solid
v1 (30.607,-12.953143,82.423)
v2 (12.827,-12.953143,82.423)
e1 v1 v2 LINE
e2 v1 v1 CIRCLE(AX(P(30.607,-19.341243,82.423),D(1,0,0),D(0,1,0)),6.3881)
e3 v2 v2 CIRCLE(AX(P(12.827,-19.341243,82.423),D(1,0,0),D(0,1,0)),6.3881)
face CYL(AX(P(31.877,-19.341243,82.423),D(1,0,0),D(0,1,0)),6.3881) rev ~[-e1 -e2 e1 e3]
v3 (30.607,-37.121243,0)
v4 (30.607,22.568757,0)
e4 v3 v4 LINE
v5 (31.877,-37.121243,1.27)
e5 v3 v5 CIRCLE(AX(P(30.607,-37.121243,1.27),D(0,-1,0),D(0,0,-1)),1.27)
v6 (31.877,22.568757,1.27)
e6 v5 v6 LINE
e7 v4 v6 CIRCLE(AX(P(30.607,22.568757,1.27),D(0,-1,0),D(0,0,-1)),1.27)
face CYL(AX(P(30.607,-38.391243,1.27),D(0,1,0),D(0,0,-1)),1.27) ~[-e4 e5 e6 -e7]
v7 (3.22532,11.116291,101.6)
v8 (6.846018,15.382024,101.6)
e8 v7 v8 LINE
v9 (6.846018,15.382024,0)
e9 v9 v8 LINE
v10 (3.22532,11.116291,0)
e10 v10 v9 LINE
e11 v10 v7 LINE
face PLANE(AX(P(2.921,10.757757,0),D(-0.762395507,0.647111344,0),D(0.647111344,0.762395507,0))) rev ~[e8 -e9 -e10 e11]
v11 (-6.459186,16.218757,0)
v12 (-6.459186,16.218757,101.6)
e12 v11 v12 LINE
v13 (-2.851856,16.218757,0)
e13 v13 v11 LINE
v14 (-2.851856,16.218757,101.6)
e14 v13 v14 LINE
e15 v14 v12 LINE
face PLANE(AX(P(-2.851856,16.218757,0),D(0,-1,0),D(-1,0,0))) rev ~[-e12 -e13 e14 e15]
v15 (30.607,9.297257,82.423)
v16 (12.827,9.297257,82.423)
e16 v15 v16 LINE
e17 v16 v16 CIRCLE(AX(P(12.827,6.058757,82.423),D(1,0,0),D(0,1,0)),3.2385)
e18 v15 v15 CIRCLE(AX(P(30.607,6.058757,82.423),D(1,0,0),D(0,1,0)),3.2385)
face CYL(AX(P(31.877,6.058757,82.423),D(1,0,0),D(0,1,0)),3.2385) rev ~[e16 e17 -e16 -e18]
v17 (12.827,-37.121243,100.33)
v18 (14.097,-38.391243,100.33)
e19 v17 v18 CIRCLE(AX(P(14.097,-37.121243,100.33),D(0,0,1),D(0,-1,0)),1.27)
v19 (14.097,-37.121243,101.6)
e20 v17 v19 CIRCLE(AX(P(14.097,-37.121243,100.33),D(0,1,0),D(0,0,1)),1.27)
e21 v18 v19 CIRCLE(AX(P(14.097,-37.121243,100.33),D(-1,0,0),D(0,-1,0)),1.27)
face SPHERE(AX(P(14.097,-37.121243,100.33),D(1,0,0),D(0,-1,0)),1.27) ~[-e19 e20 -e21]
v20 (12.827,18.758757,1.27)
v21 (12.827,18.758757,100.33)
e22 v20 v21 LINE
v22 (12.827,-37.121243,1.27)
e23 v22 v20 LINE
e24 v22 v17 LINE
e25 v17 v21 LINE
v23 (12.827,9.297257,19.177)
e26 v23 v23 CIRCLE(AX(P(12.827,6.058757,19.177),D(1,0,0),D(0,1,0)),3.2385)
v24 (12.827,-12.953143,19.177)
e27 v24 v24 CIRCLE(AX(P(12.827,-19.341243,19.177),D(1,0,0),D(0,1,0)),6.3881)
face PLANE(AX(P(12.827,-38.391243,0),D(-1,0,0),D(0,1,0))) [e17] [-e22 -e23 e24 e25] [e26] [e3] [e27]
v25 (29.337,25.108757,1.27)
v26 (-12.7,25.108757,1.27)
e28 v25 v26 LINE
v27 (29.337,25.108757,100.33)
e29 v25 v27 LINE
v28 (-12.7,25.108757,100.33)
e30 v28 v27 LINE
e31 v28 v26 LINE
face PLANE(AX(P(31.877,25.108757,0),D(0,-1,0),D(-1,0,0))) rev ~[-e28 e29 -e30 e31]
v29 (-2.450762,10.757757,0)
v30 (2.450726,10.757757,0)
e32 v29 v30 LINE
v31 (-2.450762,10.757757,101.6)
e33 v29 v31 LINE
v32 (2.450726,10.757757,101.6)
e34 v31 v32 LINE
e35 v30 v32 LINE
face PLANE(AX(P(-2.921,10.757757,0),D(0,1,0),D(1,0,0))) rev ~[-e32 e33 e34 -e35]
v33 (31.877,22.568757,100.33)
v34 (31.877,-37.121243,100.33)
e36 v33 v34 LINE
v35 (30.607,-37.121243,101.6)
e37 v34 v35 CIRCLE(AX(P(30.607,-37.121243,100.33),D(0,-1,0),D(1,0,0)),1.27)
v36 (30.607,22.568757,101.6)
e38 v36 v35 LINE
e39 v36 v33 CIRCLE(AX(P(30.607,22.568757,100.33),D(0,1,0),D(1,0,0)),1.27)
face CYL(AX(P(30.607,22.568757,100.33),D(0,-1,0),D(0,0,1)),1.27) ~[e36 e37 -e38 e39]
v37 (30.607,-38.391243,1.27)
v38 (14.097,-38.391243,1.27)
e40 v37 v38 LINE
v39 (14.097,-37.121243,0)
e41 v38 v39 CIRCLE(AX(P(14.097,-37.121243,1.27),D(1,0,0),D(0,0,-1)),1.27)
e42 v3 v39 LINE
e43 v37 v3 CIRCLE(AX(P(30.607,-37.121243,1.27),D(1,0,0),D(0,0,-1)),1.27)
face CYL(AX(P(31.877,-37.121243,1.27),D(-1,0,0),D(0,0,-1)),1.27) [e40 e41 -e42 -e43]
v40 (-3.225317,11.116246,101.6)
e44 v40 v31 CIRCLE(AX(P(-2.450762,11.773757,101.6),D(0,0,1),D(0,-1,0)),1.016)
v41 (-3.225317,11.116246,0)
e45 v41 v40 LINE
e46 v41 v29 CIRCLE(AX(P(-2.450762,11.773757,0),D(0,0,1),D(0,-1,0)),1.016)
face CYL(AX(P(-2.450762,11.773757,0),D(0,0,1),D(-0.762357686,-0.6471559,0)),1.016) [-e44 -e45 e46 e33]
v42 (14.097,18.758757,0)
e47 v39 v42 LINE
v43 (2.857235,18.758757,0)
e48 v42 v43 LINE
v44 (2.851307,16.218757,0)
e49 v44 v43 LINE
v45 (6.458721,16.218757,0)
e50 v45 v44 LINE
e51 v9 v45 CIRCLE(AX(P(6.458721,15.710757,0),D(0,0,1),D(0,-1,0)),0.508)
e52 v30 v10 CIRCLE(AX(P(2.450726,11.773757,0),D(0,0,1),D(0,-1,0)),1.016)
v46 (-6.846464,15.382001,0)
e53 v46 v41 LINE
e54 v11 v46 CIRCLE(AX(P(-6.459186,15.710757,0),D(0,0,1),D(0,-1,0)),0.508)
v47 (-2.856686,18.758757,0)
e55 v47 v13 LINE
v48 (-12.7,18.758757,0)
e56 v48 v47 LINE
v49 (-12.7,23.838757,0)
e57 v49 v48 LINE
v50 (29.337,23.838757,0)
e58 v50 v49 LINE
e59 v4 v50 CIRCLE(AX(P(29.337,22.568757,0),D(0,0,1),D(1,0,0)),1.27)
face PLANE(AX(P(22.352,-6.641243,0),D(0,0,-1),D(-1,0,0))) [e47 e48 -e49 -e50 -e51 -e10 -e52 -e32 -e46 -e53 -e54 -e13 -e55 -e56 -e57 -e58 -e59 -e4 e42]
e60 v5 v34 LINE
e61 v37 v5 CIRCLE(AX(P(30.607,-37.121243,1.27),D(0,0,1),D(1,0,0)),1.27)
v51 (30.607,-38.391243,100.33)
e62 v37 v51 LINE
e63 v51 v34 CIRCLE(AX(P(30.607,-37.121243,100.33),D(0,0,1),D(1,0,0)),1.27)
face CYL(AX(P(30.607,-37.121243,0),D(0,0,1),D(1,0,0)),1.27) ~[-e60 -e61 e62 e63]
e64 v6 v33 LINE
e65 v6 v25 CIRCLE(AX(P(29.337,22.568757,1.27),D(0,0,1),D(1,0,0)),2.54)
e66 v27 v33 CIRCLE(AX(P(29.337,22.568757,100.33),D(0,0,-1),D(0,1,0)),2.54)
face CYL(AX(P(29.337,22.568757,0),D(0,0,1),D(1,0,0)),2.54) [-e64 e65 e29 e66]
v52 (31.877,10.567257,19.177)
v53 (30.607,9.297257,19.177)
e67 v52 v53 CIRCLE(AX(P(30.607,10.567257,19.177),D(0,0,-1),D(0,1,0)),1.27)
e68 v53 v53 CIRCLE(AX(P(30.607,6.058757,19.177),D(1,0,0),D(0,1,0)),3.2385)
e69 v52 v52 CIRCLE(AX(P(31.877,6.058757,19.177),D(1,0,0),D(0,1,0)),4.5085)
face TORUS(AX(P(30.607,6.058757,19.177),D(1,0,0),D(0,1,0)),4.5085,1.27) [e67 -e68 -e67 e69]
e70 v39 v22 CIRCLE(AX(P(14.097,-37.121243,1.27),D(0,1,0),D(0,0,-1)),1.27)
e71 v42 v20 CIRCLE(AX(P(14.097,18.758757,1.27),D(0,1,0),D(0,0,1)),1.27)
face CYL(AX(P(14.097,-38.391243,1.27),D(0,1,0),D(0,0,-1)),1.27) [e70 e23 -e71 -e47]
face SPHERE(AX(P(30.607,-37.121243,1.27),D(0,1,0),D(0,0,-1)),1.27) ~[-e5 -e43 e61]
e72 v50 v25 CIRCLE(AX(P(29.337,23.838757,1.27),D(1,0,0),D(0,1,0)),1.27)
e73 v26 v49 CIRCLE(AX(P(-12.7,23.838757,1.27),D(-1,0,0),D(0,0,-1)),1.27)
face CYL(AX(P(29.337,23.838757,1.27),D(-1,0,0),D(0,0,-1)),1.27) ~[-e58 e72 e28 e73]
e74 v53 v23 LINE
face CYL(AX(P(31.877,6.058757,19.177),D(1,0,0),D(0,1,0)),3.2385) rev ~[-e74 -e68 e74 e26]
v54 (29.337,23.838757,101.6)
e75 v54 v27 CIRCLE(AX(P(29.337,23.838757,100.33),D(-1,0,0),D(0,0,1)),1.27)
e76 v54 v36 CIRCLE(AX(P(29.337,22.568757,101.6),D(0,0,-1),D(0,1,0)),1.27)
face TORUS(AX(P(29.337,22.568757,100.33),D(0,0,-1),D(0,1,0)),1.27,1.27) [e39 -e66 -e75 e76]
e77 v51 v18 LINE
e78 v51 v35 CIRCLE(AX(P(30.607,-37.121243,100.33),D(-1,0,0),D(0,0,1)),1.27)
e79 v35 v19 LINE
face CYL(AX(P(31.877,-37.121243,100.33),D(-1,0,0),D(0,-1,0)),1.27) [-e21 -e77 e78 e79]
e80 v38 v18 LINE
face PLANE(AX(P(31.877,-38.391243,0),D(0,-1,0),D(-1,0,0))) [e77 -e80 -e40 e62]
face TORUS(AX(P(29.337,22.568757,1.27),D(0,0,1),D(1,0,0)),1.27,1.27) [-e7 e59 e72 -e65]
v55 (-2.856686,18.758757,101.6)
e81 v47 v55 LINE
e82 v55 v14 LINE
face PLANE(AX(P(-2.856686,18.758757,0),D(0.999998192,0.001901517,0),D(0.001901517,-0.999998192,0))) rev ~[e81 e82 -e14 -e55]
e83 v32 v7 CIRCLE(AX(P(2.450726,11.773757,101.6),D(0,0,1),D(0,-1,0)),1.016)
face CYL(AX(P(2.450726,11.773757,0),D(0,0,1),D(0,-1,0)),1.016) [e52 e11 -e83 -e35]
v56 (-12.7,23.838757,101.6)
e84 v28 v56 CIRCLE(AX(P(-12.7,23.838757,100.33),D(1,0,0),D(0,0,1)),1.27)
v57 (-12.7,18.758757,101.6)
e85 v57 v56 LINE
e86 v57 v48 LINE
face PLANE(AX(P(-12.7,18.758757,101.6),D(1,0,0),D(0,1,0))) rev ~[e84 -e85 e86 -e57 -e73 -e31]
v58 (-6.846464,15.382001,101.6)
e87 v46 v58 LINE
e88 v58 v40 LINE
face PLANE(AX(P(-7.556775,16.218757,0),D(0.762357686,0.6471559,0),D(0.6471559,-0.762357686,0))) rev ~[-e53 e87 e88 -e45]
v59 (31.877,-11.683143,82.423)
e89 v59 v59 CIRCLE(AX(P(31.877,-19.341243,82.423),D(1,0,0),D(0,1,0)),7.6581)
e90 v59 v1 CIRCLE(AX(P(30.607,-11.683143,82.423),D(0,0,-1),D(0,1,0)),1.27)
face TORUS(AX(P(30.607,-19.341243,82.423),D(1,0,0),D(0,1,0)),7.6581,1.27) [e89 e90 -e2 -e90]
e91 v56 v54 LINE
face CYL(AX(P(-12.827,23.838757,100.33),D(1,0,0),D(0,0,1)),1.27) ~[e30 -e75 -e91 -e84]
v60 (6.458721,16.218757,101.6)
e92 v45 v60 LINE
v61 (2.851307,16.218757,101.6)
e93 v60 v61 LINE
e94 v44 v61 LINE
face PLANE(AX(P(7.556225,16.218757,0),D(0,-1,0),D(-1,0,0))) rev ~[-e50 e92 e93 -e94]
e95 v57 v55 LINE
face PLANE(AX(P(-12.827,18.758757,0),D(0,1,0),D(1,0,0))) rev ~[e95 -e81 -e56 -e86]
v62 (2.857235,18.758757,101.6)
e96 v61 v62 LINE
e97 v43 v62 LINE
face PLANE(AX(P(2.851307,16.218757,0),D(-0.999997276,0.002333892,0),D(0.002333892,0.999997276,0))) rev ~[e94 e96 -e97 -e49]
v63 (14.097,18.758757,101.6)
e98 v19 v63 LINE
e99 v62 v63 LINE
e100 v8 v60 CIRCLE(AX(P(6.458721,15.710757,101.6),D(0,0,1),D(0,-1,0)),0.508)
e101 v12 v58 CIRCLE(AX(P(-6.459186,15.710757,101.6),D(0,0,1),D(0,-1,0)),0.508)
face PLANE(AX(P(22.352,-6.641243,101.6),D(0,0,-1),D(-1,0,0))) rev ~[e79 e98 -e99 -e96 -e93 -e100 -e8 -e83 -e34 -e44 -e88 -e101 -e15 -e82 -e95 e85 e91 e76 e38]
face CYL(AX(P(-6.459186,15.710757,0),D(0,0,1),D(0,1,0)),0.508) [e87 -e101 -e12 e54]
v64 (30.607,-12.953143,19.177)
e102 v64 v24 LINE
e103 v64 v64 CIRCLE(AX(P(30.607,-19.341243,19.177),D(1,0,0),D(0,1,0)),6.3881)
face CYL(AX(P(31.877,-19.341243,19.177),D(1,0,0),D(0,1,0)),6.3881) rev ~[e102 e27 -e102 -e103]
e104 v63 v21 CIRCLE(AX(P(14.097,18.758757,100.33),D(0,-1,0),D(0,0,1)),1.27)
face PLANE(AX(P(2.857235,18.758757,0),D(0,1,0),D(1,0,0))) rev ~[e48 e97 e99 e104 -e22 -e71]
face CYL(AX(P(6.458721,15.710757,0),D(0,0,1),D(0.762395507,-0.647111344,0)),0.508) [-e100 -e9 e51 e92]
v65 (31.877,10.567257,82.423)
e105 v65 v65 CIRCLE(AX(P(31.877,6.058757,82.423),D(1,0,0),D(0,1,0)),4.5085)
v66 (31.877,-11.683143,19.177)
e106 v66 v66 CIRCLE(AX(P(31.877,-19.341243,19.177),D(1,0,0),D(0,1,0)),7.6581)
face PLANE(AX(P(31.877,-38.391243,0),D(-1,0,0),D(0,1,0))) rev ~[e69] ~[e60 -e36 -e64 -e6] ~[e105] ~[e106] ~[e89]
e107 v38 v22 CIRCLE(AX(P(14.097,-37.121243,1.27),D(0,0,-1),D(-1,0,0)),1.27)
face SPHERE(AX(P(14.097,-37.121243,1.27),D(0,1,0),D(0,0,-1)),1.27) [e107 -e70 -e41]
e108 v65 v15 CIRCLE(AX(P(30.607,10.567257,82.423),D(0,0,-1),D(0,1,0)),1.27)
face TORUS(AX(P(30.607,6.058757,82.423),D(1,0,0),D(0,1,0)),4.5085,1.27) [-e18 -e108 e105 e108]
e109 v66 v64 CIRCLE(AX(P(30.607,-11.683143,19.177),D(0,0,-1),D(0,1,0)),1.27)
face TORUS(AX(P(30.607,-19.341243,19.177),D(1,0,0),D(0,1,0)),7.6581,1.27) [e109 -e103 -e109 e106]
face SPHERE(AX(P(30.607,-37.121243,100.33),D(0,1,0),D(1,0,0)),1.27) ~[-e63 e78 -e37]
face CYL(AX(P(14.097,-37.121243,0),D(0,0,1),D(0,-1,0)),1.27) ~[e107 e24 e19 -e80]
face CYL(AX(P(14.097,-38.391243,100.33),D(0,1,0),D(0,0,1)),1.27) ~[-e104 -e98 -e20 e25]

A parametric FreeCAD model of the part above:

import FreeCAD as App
import Part
import Sketcher
from FreeCAD import Vector
Q = App.Units.Quantity


def edges_at(feature, points):
    """Names of the edges that pass closest to the given points."""
    edges = feature.Shape.Edges
    near = lambda p: min(range(len(edges)), key=lambda i: edges[i].distToShape(Part.Vertex(*p))[0])
    return sorted({f"Edge{near(p) + 1}" for p in points})


def add_polygon(sketch, points):
    """Adds a closed chain of lines whose ends are joined by coincident constraints."""
    first, n = sketch.GeometryCount, len(points)
    for a, b in zip(points, points[1:] + points[:1]):
        sketch.addGeometry(Part.LineSegment(App.Vector(*a, 0), App.Vector(*b, 0)), False)
    for i in range(n):
        sketch.addConstraint(Sketcher.Constraint("Coincident", first + i, 2, first + (i + 1) % n, 1))

doc = App.newDocument("Part")
body = doc.addObject("PartDesign::Body", "Body")

sketch1 = body.newObject("Sketcher::SketchObject", "Sketch")
sketch1.AttachmentSupport = (doc.getObject("XY_Plane"), [""])
sketch1.MapMode = "FlatFace"
add_polygon(sketch1, [(-12.827, 25.108757), (-12.827, 18.758757), (-2.856686, 18.758757), (-2.851856, 16.218757), (-7.556775, 16.218757), (-2.921, 10.757757), (2.921, 10.757757), (7.556225, 16.218757), (2.851307, 16.218757), (2.857235, 18.758757), (12.827, 18.758757), (12.827, 25.108757)])
sketch1.addConstraint([
    Sketcher.Constraint("Vertical", 0),
    Sketcher.Constraint("Horizontal", 1),
    Sketcher.Constraint("Horizontal", 3),
    Sketcher.Constraint("Horizontal", 5),
    Sketcher.Constraint("Horizontal", 7),
    Sketcher.Constraint("Horizontal", 9),
    Sketcher.Constraint("Vertical", 10),
    Sketcher.Constraint("Horizontal", 11),
    Sketcher.Constraint("Symmetric", 0, 2, 9, 2, -2),
    Sketcher.Constraint("Horizontal", 3, 2, 6, 2),
    Sketcher.Constraint("Equal", 3, 7),
    Sketcher.Constraint("Distance", 2, Q("0.1000002 in")),
    Sketcher.Constraint("DistanceX", 5, 1, 5, 2, Q("0.23 in")),
    Sketcher.Constraint("DistanceX", 11, 2, 11, 1, Q("1.01 in")),
    Sketcher.Constraint("DistanceY", 0, 2, 0, 1, Q("0.25 in")),
    Sketcher.Constraint("DistanceX", 0, 2, 4, 2, Q("0.39 in")),
    Sketcher.Constraint("DistanceY", 4, 2, 2, 2, Q("0.215 in")),
    Sketcher.Constraint("DistanceX", 3, 2, 6, 2, Q("0.595 in")),
    Sketcher.Constraint("DistanceX", 3, 2, 3, 1, Q("4.704918 mm")),
    Sketcher.Constraint("Distance", 6, Q("7.162949 mm")),
    Sketcher.Constraint("DistanceX", 1, 1, 1, 2, Q("9.970314 mm")),
    Sketcher.Constraint("DistanceX", 9, 1, 9, 2, Q("9.969765 mm")),
    Sketcher.Constraint("DistanceY", -1, 1, 0, 2, Q("18.758757 mm")),
])
pad1 = body.newObject("PartDesign::Pad", "Pad")
pad1.Profile = sketch1
pad1.Length = Q("4 in")
doc.recompute()

fillet = body.newObject("PartDesign::Fillet", "Fillet")
fillet.Base = (pad1, edges_at(pad1, [(7.556, 16.219, 50.8), (-7.557, 16.219, 50.8)]))
fillet.Radius = Q("0.02 in")
doc.recompute()

fillet2 = body.newObject("PartDesign::Fillet", "Fillet001")
fillet2.Base = (fillet, edges_at(fillet, [(2.921, 10.758, 50.8), (-2.921, 10.758, 50.8)]))
fillet2.Radius = Q("0.04 in")

sketch2 = body.newObject("Sketcher::SketchObject", "Sketch001")
sketch2.AttachmentSupport = (doc.getObject("XY_Plane"), [""])
sketch2.MapMode = "FlatFace"
add_polygon(sketch2, [(31.877, 25.108757), (31.877, -38.391243), (12.827, -38.391243), (12.827, 25.108757)])
sketch2.addConstraint([
    Sketcher.Constraint("Vertical", 0),
    Sketcher.Constraint("Horizontal", 1),
    Sketcher.Constraint("Vertical", 2),
    Sketcher.Constraint("Horizontal", 3),
    Sketcher.Constraint("DistanceY", 0, 2, 0, 1, Q("2.5 in")),
    Sketcher.Constraint("DistanceX", 1, 2, 1, 1, Q("0.75 in")),
    Sketcher.Constraint("DistanceX", -1, 1, 0, 2, Q("1.255 in")),
    Sketcher.Constraint("DistanceY", 0, 2, -1, 1, Q("38.391243 mm")),
])
pad2 = body.newObject("PartDesign::Pad", "Pad001")
pad2.Profile = sketch2
pad2.Length = Q("4 in")

sketch3 = body.newObject("Sketcher::SketchObject", "Sketch002")
sketch3.AttachmentSupport = (doc.getObject("YZ_Plane"), [""])
sketch3.MapMode = "FlatFace"
sketch3.AttachmentOffset = App.Placement(Vector(0, 0, 1.255 * 25.4), App.Rotation())
sketch3.addGeometry([
    Part.Circle(Vector(-19.341243, 19.177, 0), Vector(0, 0, 1), 6.3881),
    Part.Circle(Vector(-19.341243, 82.423, 0), Vector(0, 0, 1), 6.3881),
], False)
sketch3.addConstraint([
    Sketcher.Constraint("Equal", 0, 1),
    Sketcher.Constraint("Vertical", 0, 3, 1, 3),
    Sketcher.Constraint("Diameter", 0, Q("0.503 in")),
    Sketcher.Constraint("DistanceY", 0, 3, 1, 3, Q("2.49 in")),
    Sketcher.Constraint("DistanceY", -1, 1, 0, 3, Q("0.755 in")),
    Sketcher.Constraint("DistanceX", 0, 3, -1, 1, Q("19.341243 mm")),
])
pocket1 = body.newObject("PartDesign::Pocket", "Pocket")
pocket1.Profile = sketch3
pocket1.Length = Q("1 in")
doc.recompute()

fillet3 = body.newObject("PartDesign::Fillet", "Fillet002")
fillet3.Base = (pocket1, edges_at(pocket1, [(31.877, 25.109, 50.8)]))
fillet3.Radius = Q("0.1 in")
doc.recompute()

fillet4 = body.newObject("PartDesign::Fillet", "Fillet003")
fillet4.Base = (fillet3, edges_at(fillet3, [(31.877, -25.729, 82.423), (31.877, -25.729, 19.177)]))
fillet4.Radius = Q("0.05 in")
doc.recompute()

fillet5 = body.newObject("PartDesign::Fillet", "Fillet004")
fillet5.Base = (fillet4, edges_at(fillet4, [
    (8.255, 25.109, 0),
    (8.255, 25.109, 101.6),
    (12.827, -9.816, 0),
    (22.352, -38.391, 0),
    (31.877, -38.391, 50.8),
    (22.352, -38.391, 101.6),
    (12.827, -38.391, 50.8),
    (12.827, -9.816, 101.6),
    (31.877, -7.911, 0),
    (31.133, 24.365, 0),
    (31.877, -7.911, 101.6),
    (31.133, 24.365, 101.6),
]))
fillet5.Radius = Q("0.05 in")

sketch4 = body.newObject("Sketcher::SketchObject", "Sketch003")
sketch4.AttachmentSupport = (doc.getObject("YZ_Plane"), [""])
sketch4.MapMode = "FlatFace"
sketch4.AttachmentOffset = App.Placement(Vector(0, 0, 1.255 * 25.4), App.Rotation())
sketch4.addGeometry(Part.Circle(Vector(6.058757, 82.423, 0), Vector(0, 0, 1), 3.2385), False)
sketch4.addConstraint([
    Sketcher.Constraint("Diameter", 0, Q("0.255 in")),
    Sketcher.Constraint("DistanceY", -1, 1, 0, 3, Q("3.245 in")),
    Sketcher.Constraint("DistanceX", -1, 1, 0, 3, Q("6.058757 mm")),
])
pocket2 = body.newObject("PartDesign::Pocket", "Pocket001")
pocket2.Profile = sketch4
pocket2.Type = "UpToFirst"

sketch5 = body.newObject("Sketcher::SketchObject", "Sketch004")
sketch5.AttachmentSupport = (doc.getObject("YZ_Plane"), [""])
sketch5.MapMode = "FlatFace"
sketch5.AttachmentOffset = App.Placement(Vector(0, 0, 1.255 * 25.4), App.Rotation())
sketch5.addGeometry(Part.Circle(Vector(6.058757, 19.177, 0), Vector(0, 0, 1), 3.2385), False)
sketch5.addConstraint([
    Sketcher.Constraint("Diameter", 0, Q("0.255 in")),
    Sketcher.Constraint("DistanceY", -1, 1, 0, 3, Q("0.755 in")),
    Sketcher.Constraint("DistanceX", -1, 1, 0, 3, Q("6.058757 mm")),
])
pocket3 = body.newObject("PartDesign::Pocket", "Pocket002")
pocket3.Profile = sketch5
pocket3.Type = "UpToFirst"
doc.recompute()

fillet6 = body.newObject("PartDesign::Fillet", "Fillet005")
fillet6.Base = (pocket3, edges_at(pocket3, [(31.877, 2.82, 82.423), (31.877, 2.82, 19.177)]))
fillet6.Radius = Q("0.05 in")

sketch6 = body.newObject("Sketcher::SketchObject", "Sketch005")
sketch6.AttachmentSupport = (doc.getObject("XY_Plane"), [""])
sketch6.MapMode = "FlatFace"
sketch6.AttachmentOffset = App.Placement(Vector(0, 0, 4 * 25.4), App.Rotation())
add_polygon(sketch6, [(-12.827, 25.108757), (-12.827, 18.758757), (-12.7, 18.758757), (-12.7, 25.108757)])
sketch6.addConstraint([
    Sketcher.Constraint("Vertical", 0),
    Sketcher.Constraint("Horizontal", 1),
    Sketcher.Constraint("Vertical", 2),
    Sketcher.Constraint("Horizontal", 3),
    Sketcher.Constraint("DistanceY", 0, 2, 0, 1, Q("0.25 in")),
    Sketcher.Constraint("DistanceX", 1, 2, -1, 1, Q("0.5 in")),
    Sketcher.Constraint("DistanceX", 1, 1, 1, 2, Q("0.005 in")),
    Sketcher.Constraint("DistanceY", -1, 1, 0, 2, Q("18.758757 mm")),
])
pocket4 = body.newObject("PartDesign::Pocket", "Pocket003")
pocket4.Profile = sketch6
pocket4.Type = "ThroughAll"

doc.recompute()
